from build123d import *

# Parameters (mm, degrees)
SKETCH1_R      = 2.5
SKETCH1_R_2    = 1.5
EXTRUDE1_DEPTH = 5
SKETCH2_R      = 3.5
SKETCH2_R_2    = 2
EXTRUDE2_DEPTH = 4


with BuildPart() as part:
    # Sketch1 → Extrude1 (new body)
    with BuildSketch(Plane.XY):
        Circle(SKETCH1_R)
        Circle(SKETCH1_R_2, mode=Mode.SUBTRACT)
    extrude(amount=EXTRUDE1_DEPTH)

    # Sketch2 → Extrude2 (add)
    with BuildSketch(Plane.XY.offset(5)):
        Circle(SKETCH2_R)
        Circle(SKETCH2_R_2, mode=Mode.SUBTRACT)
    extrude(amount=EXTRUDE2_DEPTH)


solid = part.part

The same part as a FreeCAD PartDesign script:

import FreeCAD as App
import Part
import Sketcher
from FreeCAD import Vector

doc = App.newDocument("Part")
body = doc.addObject("PartDesign::Body", "Body")

# Sketch on XY plane
sketch1 = body.newObject("Sketcher::SketchObject", "Sketch")
sketch1.AttachmentSupport = (doc.getObject("XY_Plane"), [""])
sketch1.MapMode = "FlatFace"
sketch1.addGeometry([
    Part.Circle(Vector(0, 0, 0), Vector(0, 0, 1), 2.5),
    Part.Circle(Vector(0, 0, 0), Vector(0, 0, 1), 1.5),
], False)
sketch1.addConstraint([
    Sketcher.Constraint("Coincident", 0, 3, -1, 1),
    Sketcher.Constraint("Coincident", 1, 3, -1, 1),
    Sketcher.Constraint("Diameter", 0, 5.0),
    Sketcher.Constraint("Diameter", 1, 3.0),
])
pad1 = body.newObject("PartDesign::Pad", "Pad")
pad1.Profile = sketch1
pad1.Length = 5

# Sketch on XY plane
sketch2 = body.newObject("Sketcher::SketchObject", "Sketch001")
sketch2.AttachmentSupport = (doc.getObject("XY_Plane"), [""])
sketch2.MapMode = "FlatFace"
sketch2.AttachmentOffset = App.Placement(Vector(0, 0, 5), App.Rotation())
sketch2.addGeometry([
    Part.Circle(Vector(0, 0, 0), Vector(0, 0, 1), 3.5),
    Part.Circle(Vector(0, 0, 0), Vector(0, 0, 1), 2),
], False)
sketch2.addConstraint([
    Sketcher.Constraint("Coincident", 0, 3, -1, 1),
    Sketcher.Constraint("Coincident", 1, 3, -1, 1),
    Sketcher.Constraint("Diameter", 0, 7.0),
    Sketcher.Constraint("Diameter", 1, 4.0),
])
pad2 = body.newObject("PartDesign::Pad", "Pad001")
pad2.Profile = sketch2
pad2.Length = 4

doc.recompute()
